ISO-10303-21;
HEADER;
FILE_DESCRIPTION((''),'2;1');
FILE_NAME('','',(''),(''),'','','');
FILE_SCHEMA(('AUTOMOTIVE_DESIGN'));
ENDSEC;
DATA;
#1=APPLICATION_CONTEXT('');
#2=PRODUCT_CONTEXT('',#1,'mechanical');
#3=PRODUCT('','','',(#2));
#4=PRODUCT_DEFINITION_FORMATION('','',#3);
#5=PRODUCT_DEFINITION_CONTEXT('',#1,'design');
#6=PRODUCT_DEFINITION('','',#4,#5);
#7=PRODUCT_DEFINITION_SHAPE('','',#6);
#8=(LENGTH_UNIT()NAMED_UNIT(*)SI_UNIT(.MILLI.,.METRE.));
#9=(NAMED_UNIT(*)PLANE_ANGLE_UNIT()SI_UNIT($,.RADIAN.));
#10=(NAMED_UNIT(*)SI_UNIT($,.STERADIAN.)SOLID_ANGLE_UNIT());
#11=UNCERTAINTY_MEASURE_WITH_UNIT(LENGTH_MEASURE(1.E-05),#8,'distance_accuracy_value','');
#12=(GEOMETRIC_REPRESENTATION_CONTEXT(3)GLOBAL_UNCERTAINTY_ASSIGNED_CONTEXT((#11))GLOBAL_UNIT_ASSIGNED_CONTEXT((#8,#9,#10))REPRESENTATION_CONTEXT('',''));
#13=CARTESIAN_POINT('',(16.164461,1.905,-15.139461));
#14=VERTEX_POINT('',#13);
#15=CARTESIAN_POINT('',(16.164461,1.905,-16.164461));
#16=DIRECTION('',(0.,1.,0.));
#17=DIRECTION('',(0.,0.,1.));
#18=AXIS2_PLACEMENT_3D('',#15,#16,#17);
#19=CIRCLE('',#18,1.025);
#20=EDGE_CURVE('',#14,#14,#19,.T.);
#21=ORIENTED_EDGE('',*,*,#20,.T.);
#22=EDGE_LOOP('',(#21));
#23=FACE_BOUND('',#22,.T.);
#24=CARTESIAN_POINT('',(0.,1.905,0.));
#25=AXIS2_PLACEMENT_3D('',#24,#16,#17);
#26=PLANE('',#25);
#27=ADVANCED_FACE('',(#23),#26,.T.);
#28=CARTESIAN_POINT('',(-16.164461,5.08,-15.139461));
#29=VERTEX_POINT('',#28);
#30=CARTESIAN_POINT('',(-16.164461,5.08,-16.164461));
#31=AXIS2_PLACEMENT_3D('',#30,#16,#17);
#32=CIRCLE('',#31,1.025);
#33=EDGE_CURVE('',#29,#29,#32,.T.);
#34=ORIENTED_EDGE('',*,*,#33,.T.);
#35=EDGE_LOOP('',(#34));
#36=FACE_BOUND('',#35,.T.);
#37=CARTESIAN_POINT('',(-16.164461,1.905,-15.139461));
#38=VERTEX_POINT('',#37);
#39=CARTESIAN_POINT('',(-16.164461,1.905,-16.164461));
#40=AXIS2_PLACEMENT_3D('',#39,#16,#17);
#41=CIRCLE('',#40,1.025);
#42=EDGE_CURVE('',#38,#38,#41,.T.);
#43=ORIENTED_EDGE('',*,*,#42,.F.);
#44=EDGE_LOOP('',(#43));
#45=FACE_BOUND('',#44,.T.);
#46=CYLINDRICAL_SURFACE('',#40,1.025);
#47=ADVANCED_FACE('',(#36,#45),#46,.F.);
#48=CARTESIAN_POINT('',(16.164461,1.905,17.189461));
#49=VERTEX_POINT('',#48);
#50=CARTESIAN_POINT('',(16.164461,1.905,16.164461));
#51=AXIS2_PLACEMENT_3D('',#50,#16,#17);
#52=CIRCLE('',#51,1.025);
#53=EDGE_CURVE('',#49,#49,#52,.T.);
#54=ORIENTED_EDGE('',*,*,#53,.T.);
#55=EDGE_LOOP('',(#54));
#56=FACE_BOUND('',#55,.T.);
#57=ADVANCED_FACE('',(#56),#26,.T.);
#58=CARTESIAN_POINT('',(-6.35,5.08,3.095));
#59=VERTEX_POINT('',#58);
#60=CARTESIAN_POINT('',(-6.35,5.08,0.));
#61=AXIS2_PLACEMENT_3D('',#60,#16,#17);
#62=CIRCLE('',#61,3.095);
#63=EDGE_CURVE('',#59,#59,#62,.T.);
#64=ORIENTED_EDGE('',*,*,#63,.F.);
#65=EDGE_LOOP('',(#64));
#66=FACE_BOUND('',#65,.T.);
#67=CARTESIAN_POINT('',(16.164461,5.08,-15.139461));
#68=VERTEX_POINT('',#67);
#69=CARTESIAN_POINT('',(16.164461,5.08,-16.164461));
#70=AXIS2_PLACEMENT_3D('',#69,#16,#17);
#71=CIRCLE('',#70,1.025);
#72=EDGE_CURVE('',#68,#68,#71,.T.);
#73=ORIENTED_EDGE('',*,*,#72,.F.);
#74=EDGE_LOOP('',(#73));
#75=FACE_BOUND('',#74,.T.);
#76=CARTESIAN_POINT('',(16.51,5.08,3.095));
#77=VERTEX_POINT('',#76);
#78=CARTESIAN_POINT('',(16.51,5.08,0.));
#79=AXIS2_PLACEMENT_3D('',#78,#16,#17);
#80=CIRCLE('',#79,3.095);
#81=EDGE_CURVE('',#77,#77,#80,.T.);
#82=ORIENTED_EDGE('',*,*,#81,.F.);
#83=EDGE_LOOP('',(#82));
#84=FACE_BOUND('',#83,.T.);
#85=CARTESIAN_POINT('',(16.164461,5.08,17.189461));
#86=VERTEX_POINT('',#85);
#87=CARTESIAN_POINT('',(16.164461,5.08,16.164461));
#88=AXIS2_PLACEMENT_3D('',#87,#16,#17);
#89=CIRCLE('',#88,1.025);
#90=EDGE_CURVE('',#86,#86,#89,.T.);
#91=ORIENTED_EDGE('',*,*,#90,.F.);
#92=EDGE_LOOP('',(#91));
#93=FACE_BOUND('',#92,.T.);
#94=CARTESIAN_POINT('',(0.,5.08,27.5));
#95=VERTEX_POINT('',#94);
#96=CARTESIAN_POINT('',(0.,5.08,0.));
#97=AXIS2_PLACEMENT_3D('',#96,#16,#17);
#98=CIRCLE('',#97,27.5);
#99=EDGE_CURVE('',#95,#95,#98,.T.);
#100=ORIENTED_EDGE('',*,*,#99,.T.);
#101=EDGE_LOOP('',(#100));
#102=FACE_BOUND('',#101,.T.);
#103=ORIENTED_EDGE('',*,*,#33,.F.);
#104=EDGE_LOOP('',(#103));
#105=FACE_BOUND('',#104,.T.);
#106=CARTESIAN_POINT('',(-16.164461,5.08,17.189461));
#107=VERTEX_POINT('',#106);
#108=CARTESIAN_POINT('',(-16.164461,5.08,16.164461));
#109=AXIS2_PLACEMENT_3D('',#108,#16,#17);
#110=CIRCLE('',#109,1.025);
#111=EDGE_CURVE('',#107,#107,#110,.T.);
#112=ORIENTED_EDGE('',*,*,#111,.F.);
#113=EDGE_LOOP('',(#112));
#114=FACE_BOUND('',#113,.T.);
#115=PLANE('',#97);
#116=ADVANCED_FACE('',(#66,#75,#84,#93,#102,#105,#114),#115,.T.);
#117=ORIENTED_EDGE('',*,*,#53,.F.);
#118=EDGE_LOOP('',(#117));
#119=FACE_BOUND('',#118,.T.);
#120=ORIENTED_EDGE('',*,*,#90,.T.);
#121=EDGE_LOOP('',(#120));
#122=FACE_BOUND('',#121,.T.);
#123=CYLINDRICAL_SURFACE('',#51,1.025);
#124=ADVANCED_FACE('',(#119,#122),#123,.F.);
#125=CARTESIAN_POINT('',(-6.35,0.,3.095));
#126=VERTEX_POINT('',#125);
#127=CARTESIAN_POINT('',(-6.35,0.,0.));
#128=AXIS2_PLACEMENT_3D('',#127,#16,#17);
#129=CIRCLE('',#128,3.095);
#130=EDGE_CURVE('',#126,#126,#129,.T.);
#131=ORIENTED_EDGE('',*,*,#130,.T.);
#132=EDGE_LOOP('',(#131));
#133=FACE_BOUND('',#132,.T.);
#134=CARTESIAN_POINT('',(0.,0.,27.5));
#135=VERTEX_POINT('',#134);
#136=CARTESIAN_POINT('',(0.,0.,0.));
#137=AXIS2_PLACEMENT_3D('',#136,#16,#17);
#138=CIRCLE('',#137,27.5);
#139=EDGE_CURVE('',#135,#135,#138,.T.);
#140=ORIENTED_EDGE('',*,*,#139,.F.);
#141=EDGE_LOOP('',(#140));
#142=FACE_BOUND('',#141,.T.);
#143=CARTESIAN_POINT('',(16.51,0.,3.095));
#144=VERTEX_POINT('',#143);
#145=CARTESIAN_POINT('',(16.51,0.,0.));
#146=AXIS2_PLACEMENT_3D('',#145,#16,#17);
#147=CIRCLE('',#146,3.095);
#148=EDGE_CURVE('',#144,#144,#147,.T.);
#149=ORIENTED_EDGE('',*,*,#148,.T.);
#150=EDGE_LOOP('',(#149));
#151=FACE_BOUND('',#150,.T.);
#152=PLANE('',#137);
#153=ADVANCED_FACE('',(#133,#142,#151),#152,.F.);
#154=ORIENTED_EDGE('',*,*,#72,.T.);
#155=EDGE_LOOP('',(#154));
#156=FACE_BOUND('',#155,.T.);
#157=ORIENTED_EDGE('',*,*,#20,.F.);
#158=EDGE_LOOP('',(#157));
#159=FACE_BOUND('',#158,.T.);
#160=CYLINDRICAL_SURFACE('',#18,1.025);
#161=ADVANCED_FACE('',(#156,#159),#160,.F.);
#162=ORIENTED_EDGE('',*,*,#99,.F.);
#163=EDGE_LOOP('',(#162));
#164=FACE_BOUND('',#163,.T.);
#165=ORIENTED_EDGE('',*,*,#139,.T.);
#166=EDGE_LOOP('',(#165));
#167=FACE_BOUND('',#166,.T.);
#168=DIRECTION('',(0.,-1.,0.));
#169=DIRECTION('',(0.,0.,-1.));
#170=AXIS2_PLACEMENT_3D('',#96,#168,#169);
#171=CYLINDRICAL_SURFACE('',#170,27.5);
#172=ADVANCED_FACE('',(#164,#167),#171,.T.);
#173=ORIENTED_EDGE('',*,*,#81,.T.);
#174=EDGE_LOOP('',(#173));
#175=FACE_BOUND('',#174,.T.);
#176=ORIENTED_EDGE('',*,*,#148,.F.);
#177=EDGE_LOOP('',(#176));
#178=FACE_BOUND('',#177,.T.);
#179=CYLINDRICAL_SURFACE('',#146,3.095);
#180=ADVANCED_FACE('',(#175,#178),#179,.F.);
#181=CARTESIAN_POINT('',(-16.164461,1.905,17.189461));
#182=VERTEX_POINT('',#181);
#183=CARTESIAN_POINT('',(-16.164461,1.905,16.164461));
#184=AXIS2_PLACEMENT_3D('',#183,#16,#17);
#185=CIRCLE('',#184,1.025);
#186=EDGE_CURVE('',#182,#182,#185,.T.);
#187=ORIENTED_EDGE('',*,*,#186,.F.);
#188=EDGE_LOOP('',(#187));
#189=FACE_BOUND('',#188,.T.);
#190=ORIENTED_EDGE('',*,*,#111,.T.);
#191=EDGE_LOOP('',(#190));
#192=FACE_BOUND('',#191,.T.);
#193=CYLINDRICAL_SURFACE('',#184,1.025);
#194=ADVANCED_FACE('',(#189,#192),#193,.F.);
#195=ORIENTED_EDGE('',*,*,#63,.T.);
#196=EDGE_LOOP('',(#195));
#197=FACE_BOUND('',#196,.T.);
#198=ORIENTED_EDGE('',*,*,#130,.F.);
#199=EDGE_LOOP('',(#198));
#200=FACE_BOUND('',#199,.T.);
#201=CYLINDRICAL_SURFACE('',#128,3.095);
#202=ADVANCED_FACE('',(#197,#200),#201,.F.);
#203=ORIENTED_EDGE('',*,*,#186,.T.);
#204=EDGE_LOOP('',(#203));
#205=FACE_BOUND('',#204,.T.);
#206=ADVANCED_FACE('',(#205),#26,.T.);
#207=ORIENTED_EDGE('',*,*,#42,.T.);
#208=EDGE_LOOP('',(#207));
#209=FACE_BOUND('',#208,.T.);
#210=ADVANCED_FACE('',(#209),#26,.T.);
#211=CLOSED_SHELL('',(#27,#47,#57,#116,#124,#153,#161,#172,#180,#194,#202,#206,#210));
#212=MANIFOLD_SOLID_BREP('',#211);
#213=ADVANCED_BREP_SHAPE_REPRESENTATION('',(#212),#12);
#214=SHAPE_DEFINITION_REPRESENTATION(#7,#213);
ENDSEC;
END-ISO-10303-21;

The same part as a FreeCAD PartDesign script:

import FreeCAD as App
import Part
import Sketcher

V = App.Vector
Q = App.Units.Quantity

doc = App.newDocument("Part")
params = doc.addObject("Spreadsheet::Sheet", "Params")
for row, (alias, value) in enumerate([
    ("pad1_length", "0.2 in"),
    ("pocket1_length", "0.125 in"),
], start=1):
    params.set(f"A{row}", alias)
    params.set(f"B{row}", "=" + value)
    params.setAlias(f"B{row}", alias)

body = doc.addObject("PartDesign::Body", "Body")

sketch1 = body.newObject("Sketcher::SketchObject", "Sketch")
sketch1.AttachmentSupport = (doc.getObject("XZ_Plane"), [""])
sketch1.MapMode = "FlatFace"
sketch1.addGeometry(Part.Circle(V(0, 0, 0), V(0, 0, 1), 28), False)
sketch1.addConstraint(Sketcher.Constraint("Coincident", 0, 3, -1, 1))
sketch1.addConstraint(Sketcher.Constraint("Diameter", 0, Q("55 mm")))
pad1 = body.newObject("PartDesign::Pad", "Pad")
pad1.Profile = sketch1
pad1.setExpression("Length", "Params.pad1_length")
pad1.Reversed = True

sketch2 = body.newObject("Sketcher::SketchObject", "Sketch001")
sketch2.AttachmentSupport = (doc.getObject("XZ_Plane"), [""])
sketch2.MapMode = "FlatFace"
sketch2.AttachmentOffset = App.Placement(V(0, 0, -0.2 * 25.4), App.Rotation())
sketch2.addGeometry(Part.Circle(V(16.2, -16.2, 0), V(0, 0, 1), 1), False)
sketch2.addGeometry(Part.Circle(V(16.2, 16.2, 0), V(0, 0, 1), 1), False)
sketch2.addGeometry(Part.Circle(V(-16.2, 16.2, 0), V(0, 0, 1), 1), False)
sketch2.addGeometry(Part.Circle(V(-16.2, -16.2, 0), V(0, 0, 1), 1), False)
sketch2.addConstraint(Sketcher.Constraint("Equal", 0, 1))
sketch2.addConstraint(Sketcher.Constraint("Equal", 1, 2))
sketch2.addConstraint(Sketcher.Constraint("Equal", 2, 3))
sketch2.addConstraint(Sketcher.Constraint("Symmetric", 0, 3, 2, 3, -1, 1))
sketch2.addConstraint(Sketcher.Constraint("Symmetric", 1, 3, 3, 3, -1, 1))
sketch2.addConstraint(Sketcher.Constraint("Symmetric", 1, 3, 2, 3, -2))
sketch2.addConstraint(Sketcher.Constraint("Diameter", 0, Q("2.05 mm")))
sketch2.addConstraint(Sketcher.Constraint("DistanceX", -1, 1, 0, 3, Q("16.164461 mm")))
sketch2.addConstraint(Sketcher.Constraint("DistanceY", 0, 3, -1, 1, Q("16.164461 mm")))
pocket1 = body.newObject("PartDesign::Pocket", "Pocket")
pocket1.Profile = sketch2
pocket1.setExpression("Length", "Params.pocket1_length")
pocket1.Reversed = True

sketch3 = body.newObject("Sketcher::SketchObject", "Sketch002")
sketch3.AttachmentSupport = (doc.getObject("XZ_Plane"), [""])
sketch3.MapMode = "FlatFace"
sketch3.AttachmentOffset = App.Placement(V(0, 0, -0.2 * 25.4), App.Rotation())
sketch3.addGeometry(Part.Circle(V(-6.3, 0, 0), V(0, 0, 1), 3.1), False)
sketch3.addGeometry(Part.Circle(V(16.5, 0, 0), V(0, 0, 1), 3.1), False)
sketch3.addConstraint(Sketcher.Constraint("Equal", 0, 1))
sketch3.addConstraint(Sketcher.Constraint("PointOnObject", 0, 3, -1))
sketch3.addConstraint(Sketcher.Constraint("PointOnObject", 1, 3, -1))
sketch3.addConstraint(Sketcher.Constraint("DistanceX", 0, 3, 1, 3, Q("0.9 in")))
sketch3.addConstraint(Sketcher.Constraint("Diameter", 0, Q("6.19 mm")))
sketch3.addConstraint(Sketcher.Constraint("DistanceX", 0, 3, -1, 1, Q("0.25 in")))
pocket2 = body.newObject("PartDesign::Pocket", "Pocket001")
pocket2.Profile = sketch3
pocket2.Type = "ThroughAll"
pocket2.Reversed = True

doc.recompute()
